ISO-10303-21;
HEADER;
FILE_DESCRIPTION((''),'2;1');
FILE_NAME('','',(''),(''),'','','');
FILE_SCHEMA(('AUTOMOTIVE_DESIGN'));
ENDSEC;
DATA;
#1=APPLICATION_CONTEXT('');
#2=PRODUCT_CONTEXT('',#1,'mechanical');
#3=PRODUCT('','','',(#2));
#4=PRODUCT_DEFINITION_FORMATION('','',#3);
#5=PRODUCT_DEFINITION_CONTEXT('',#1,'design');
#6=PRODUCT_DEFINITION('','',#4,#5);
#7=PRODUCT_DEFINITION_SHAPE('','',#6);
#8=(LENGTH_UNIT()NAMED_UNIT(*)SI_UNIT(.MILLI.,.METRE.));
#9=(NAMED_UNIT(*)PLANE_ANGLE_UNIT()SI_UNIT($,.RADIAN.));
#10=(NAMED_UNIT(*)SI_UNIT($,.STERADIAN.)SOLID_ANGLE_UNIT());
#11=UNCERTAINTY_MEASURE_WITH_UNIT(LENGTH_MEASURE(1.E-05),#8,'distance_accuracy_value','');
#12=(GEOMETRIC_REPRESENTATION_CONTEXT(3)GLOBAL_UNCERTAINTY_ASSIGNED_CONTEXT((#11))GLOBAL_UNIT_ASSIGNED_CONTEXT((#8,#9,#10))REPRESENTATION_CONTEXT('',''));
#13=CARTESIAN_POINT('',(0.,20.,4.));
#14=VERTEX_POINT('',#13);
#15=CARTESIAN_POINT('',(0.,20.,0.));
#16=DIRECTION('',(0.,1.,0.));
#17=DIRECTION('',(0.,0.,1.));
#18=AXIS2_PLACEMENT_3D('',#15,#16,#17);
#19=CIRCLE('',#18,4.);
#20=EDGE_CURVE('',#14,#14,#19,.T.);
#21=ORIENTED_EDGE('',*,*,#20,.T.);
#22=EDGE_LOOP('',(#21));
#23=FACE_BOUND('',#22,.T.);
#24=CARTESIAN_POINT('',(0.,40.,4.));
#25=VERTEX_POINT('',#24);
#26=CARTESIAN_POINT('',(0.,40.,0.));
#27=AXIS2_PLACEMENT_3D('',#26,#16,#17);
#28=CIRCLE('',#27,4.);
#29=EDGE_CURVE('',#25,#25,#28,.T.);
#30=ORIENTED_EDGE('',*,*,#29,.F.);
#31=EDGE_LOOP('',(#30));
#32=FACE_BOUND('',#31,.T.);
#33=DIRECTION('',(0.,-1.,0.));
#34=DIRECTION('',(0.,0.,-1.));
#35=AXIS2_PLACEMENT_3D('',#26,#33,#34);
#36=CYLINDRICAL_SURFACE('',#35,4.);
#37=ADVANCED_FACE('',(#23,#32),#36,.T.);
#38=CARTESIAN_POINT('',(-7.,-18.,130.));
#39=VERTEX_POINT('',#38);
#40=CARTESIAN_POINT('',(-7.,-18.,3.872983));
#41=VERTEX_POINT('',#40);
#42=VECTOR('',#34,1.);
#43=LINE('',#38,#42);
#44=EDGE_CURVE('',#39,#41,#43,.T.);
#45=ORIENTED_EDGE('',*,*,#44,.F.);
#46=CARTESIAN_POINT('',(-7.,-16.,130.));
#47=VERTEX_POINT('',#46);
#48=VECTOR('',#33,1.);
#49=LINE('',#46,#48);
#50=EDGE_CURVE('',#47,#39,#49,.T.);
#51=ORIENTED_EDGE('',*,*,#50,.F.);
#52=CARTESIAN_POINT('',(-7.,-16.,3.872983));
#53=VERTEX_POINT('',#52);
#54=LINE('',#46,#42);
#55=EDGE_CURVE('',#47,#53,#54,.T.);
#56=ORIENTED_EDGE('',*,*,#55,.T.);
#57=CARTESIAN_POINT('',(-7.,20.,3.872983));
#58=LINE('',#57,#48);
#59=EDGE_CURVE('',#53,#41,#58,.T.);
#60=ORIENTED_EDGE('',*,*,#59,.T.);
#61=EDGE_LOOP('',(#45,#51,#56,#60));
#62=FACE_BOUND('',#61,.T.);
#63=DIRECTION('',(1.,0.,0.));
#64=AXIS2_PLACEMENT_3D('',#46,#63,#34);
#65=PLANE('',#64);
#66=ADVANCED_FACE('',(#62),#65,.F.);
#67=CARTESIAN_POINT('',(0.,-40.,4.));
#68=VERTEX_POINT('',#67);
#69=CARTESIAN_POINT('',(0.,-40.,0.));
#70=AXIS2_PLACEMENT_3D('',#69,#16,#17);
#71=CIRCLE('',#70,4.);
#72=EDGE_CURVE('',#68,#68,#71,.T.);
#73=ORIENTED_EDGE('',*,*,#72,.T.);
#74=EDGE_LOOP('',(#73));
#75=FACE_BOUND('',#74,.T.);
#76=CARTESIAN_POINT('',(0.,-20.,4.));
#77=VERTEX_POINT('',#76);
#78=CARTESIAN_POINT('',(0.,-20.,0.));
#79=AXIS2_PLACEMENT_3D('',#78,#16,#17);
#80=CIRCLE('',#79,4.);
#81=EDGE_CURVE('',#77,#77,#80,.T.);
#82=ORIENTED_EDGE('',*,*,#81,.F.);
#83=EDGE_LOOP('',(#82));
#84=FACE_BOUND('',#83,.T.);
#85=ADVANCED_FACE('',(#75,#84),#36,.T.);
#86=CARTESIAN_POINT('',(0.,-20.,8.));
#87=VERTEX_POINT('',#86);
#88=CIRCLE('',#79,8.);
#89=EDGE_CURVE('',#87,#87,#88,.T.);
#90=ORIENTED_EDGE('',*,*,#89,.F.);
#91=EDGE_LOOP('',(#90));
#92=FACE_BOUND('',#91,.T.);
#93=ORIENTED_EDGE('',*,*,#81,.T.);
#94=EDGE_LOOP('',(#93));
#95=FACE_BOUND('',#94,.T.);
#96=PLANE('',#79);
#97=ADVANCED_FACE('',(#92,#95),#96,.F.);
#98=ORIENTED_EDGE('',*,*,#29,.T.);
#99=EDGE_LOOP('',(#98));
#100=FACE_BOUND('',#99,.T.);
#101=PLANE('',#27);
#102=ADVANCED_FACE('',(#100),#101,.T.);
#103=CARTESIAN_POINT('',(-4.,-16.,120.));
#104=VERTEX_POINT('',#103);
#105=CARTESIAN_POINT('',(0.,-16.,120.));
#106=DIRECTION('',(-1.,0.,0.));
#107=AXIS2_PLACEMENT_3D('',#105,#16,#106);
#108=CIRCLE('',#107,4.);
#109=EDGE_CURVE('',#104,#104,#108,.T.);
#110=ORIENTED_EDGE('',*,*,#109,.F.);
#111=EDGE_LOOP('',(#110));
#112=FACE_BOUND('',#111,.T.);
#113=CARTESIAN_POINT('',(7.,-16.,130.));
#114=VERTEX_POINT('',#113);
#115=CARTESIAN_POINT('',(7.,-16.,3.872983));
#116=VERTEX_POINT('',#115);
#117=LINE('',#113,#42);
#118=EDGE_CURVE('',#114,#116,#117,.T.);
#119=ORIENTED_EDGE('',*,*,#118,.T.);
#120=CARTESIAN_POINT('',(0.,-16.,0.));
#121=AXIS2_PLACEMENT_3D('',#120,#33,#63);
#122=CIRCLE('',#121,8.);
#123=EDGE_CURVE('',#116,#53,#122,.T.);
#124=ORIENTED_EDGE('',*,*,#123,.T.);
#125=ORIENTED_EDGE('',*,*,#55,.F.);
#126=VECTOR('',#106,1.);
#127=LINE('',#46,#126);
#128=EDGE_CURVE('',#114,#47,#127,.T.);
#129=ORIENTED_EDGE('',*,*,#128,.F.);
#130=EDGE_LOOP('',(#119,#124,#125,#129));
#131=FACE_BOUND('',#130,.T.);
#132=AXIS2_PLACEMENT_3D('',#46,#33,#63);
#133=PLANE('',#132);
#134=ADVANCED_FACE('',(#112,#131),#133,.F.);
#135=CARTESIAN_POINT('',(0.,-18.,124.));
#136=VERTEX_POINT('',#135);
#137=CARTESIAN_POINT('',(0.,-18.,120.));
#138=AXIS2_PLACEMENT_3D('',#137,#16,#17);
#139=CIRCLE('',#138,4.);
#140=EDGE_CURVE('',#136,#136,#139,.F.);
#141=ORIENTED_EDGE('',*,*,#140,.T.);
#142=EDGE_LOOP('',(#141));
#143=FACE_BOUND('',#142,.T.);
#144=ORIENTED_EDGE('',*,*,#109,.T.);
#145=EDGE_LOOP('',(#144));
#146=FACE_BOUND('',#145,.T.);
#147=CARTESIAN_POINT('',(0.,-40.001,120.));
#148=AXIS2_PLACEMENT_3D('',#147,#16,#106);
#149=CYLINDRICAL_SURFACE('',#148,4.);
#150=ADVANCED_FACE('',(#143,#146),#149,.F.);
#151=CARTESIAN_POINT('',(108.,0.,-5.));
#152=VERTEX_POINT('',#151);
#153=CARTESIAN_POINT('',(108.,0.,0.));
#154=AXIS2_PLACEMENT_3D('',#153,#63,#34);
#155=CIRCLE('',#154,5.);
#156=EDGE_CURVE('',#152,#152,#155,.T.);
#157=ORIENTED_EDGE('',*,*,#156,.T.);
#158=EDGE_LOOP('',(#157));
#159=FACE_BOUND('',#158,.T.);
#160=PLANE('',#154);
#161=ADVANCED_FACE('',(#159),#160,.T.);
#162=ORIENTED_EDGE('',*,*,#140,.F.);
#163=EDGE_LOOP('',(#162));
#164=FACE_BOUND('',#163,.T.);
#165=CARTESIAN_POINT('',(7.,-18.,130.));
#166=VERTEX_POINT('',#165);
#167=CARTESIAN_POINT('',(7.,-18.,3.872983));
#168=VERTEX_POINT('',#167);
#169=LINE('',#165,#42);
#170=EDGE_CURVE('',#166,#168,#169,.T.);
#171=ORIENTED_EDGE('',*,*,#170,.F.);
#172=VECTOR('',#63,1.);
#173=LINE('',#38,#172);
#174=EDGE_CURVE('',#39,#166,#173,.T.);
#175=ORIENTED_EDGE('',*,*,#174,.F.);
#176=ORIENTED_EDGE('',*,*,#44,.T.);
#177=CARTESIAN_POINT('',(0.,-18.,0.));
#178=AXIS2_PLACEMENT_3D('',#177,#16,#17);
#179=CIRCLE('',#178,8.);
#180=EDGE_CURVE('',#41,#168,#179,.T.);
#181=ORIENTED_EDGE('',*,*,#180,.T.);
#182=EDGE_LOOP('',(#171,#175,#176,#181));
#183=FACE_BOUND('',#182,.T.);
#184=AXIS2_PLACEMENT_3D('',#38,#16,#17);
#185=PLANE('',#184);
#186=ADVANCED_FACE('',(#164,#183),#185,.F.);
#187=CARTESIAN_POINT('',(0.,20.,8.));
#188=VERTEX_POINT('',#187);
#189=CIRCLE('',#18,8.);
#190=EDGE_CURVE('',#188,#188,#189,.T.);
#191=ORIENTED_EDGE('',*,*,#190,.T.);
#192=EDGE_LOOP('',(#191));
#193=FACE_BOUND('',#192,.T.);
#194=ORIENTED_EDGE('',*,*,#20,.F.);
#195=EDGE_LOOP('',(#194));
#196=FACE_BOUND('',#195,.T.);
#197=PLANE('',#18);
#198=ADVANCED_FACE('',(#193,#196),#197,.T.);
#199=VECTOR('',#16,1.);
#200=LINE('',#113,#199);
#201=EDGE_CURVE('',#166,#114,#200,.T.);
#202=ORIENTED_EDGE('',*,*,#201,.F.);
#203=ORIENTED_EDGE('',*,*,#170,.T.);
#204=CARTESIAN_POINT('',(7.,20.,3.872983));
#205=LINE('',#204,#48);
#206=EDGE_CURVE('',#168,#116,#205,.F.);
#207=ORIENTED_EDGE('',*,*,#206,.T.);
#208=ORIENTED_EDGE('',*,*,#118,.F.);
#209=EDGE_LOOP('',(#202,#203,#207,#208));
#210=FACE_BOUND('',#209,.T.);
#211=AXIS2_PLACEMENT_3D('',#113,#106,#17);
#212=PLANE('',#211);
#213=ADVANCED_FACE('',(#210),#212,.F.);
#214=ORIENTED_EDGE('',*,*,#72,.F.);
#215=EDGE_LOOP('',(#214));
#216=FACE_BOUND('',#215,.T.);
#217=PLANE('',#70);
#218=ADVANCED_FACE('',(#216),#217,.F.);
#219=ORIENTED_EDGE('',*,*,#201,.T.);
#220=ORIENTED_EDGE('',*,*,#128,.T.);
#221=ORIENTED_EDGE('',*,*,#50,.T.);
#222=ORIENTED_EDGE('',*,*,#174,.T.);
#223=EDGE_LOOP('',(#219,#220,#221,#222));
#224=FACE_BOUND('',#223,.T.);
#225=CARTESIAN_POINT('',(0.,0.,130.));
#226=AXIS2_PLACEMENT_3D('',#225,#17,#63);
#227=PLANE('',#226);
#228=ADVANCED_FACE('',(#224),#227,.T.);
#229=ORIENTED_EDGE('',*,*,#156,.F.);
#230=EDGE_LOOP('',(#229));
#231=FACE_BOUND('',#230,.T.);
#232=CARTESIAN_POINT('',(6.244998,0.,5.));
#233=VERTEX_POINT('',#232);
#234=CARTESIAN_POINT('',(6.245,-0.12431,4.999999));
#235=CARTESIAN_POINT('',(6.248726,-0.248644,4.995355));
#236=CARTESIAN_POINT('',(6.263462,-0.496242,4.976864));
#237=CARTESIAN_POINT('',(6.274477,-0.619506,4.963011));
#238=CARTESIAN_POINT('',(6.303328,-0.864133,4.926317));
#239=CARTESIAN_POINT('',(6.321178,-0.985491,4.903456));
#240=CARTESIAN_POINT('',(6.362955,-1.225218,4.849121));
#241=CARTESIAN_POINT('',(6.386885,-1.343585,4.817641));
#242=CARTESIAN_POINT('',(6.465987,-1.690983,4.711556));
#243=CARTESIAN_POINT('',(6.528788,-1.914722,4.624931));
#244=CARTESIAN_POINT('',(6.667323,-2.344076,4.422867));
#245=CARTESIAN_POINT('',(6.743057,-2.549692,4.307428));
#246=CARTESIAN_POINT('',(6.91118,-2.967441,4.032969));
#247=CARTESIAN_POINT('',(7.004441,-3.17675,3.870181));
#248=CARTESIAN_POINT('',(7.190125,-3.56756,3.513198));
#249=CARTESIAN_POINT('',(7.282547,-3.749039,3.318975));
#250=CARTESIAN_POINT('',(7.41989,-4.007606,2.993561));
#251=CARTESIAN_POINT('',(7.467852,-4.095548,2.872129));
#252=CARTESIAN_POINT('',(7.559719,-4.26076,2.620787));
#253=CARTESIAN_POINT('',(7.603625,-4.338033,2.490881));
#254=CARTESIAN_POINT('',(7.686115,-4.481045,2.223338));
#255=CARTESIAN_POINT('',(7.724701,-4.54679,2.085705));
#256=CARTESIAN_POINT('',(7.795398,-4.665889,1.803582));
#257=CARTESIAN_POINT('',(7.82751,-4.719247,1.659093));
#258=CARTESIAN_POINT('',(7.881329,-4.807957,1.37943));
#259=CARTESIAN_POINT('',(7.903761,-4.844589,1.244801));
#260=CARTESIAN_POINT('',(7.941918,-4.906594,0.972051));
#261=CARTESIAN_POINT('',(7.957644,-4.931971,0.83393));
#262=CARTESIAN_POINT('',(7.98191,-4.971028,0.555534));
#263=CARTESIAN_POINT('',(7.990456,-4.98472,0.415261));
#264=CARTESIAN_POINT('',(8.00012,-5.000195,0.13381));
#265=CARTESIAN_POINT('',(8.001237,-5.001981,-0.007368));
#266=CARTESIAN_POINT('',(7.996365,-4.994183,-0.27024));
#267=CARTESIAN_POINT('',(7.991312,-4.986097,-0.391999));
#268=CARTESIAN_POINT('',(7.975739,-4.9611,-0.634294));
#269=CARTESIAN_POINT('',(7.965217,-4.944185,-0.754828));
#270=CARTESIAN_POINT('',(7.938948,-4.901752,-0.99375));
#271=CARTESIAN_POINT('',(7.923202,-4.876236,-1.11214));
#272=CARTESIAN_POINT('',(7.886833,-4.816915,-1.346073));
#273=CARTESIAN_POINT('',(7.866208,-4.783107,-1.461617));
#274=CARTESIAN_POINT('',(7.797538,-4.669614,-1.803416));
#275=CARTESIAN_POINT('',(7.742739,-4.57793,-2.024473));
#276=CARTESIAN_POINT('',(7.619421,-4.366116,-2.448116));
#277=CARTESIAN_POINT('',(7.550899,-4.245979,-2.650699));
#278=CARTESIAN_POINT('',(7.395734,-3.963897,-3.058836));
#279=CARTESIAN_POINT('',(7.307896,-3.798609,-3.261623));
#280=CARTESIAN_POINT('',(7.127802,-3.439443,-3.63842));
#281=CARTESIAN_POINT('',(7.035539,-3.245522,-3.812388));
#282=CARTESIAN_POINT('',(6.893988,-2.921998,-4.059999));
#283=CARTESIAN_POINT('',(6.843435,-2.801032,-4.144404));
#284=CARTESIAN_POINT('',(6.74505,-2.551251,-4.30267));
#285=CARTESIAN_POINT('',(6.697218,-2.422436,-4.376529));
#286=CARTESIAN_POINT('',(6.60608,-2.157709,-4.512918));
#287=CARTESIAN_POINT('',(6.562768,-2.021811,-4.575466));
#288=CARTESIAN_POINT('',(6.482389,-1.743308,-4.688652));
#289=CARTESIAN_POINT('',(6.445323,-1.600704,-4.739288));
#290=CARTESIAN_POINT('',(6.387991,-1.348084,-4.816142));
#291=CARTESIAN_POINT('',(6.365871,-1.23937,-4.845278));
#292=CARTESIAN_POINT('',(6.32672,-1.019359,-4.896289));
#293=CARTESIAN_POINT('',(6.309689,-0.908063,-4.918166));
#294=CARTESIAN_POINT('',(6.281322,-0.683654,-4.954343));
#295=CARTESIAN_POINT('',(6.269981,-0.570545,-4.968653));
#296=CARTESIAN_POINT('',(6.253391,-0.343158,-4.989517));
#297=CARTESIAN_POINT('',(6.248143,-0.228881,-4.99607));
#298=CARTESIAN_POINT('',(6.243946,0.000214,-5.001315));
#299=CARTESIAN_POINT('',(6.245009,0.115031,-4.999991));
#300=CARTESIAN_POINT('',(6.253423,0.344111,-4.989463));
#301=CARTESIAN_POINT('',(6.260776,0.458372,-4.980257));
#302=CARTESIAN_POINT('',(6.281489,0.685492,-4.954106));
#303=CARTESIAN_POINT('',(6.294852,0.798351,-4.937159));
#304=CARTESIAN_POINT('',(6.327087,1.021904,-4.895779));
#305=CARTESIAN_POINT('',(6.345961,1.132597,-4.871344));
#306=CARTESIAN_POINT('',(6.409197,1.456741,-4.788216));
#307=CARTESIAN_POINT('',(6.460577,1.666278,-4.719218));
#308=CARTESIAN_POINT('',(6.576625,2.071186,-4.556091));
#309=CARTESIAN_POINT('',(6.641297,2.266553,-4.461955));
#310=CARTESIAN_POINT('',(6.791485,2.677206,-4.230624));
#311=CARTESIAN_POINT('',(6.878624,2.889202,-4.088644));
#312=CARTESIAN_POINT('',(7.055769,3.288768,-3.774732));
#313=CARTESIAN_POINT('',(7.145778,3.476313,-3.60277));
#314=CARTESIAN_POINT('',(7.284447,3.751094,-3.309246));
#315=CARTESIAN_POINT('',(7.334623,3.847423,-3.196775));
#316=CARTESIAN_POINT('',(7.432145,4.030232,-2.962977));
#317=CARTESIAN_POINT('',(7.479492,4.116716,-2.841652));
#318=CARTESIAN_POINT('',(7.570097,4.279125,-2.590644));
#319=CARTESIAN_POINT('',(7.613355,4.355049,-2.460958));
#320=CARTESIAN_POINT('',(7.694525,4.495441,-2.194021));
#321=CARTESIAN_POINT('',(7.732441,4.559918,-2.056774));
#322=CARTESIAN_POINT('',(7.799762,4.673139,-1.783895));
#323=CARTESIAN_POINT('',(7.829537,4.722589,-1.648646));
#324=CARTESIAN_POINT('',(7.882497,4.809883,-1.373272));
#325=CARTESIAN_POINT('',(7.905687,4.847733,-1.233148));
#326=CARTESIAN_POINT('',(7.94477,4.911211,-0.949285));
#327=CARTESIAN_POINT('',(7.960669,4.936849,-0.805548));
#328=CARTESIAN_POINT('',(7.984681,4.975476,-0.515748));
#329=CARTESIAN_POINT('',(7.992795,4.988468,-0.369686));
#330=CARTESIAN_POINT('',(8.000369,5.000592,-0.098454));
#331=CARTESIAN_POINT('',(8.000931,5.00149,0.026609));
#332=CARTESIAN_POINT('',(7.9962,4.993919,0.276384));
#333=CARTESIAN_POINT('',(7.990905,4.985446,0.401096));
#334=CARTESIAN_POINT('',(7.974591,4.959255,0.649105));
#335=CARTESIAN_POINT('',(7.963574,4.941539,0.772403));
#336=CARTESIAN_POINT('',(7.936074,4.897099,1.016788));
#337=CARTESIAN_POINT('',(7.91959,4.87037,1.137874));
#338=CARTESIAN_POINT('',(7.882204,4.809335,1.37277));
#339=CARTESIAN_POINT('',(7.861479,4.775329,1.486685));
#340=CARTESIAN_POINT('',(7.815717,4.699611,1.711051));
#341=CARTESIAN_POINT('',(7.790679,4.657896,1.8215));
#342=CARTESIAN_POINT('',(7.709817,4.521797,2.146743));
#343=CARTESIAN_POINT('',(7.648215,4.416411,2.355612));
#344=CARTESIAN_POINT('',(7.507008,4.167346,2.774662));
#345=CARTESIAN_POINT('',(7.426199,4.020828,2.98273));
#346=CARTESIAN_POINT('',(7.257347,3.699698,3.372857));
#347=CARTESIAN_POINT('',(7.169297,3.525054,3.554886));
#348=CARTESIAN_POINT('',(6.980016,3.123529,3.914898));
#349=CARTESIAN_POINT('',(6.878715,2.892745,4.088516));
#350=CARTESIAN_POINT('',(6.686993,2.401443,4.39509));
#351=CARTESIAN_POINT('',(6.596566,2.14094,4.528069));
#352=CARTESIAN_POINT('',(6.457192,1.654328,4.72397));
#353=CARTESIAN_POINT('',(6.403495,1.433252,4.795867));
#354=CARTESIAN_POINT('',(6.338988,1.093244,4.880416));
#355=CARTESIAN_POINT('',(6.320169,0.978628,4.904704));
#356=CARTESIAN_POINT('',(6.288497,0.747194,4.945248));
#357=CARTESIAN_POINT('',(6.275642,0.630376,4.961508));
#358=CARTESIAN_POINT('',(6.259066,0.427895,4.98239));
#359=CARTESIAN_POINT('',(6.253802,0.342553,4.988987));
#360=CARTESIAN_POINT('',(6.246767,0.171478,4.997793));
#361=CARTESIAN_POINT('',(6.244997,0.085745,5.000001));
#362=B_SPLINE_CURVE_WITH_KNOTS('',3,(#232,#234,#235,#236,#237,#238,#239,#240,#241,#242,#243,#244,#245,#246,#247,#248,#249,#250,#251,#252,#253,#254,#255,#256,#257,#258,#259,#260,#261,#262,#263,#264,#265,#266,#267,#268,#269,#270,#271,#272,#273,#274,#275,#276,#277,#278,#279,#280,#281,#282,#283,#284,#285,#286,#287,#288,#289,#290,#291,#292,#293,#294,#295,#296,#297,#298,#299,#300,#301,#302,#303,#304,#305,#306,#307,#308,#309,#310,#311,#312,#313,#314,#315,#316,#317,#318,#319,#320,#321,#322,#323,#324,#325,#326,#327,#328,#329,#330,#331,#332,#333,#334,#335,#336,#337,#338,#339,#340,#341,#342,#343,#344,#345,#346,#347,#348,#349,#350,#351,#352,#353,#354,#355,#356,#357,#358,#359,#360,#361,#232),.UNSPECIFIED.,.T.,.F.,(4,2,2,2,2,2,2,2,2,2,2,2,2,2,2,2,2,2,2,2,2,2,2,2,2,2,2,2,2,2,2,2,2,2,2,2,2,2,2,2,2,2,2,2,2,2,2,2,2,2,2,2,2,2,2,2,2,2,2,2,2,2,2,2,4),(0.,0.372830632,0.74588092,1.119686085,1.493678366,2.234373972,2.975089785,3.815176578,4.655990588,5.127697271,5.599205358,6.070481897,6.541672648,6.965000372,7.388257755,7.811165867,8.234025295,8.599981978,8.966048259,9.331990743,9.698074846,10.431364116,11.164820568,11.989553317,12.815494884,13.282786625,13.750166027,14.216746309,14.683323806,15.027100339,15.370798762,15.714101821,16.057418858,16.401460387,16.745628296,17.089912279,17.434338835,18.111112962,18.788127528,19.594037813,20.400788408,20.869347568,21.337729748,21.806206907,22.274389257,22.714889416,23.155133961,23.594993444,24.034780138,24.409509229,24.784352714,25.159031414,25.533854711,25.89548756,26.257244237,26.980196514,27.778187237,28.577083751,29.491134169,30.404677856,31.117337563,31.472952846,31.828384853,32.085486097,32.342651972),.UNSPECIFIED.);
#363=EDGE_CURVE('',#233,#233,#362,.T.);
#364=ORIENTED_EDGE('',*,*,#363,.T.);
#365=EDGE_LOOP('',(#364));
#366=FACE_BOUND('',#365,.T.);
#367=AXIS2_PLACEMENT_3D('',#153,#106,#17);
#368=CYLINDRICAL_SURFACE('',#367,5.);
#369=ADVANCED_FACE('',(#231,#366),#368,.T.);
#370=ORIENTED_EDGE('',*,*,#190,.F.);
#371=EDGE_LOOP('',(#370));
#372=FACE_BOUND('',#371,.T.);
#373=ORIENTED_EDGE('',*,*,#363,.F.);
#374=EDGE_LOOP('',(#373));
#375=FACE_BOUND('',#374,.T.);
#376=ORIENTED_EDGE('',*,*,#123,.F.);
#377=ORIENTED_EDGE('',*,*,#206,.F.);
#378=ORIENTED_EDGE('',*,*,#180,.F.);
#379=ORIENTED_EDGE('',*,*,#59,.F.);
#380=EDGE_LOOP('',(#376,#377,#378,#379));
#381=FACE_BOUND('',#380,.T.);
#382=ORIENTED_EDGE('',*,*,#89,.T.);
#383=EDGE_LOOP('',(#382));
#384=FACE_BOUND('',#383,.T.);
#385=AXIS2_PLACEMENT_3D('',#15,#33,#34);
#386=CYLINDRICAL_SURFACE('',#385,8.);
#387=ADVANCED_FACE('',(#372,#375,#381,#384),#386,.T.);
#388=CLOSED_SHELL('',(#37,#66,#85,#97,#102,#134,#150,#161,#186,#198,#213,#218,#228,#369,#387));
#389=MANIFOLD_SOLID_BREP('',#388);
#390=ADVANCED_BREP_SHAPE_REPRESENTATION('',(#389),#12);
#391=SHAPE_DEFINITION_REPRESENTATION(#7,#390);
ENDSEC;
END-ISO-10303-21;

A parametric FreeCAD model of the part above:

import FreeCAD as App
import Part
import Sketcher
from FreeCAD import Vector


def add_polygon(sketch, points):
    """Adds a closed chain of lines whose ends are joined by coincident constraints."""
    first, n = sketch.GeometryCount, len(points)
    for a, b in zip(points, points[1:] + points[:1]):
        sketch.addGeometry(Part.LineSegment(App.Vector(*a, 0), App.Vector(*b, 0)), False)
    for i in range(n):
        sketch.addConstraint(Sketcher.Constraint("Coincident", first + i, 2, first + (i + 1) % n, 1))

doc = App.newDocument("Part")
body = doc.addObject("PartDesign::Body", "Body")

# Sketch on XZ plane
sketch1 = body.newObject("Sketcher::SketchObject", "Sketch")
sketch1.AttachmentSupport = (doc.getObject("XZ_Plane"), [""])
sketch1.MapMode = "FlatFace"
sketch1.addGeometry(Part.Circle(Vector(0, 0, 0), Vector(0, 0, 1), 4), False)
sketch1.addConstraint(Sketcher.Constraint("Coincident", 0, 3, -1, 1))
sketch1.addConstraint(Sketcher.Constraint("Diameter", 0, 8.0))
pad1 = body.newObject("PartDesign::Pad", "Pad")
pad1.Profile = sketch1
pad1.Length = 80
pad1.Midplane = True

# Sketch on XZ plane
sketch2 = body.newObject("Sketcher::SketchObject", "Sketch001")
sketch2.AttachmentSupport = (doc.getObject("XZ_Plane"), [""])
sketch2.MapMode = "FlatFace"
sketch2.addGeometry(Part.Circle(Vector(0, 0, 0), Vector(0, 0, 1), 8), False)
sketch2.addConstraint(Sketcher.Constraint("Coincident", 0, 3, -1, 1))
sketch2.addConstraint(Sketcher.Constraint("Diameter", 0, 16.0))
pad2 = body.newObject("PartDesign::Pad", "Pad001")
pad2.Profile = sketch2
pad2.Length = 40
pad2.Midplane = True

# Sketch on YZ plane
sketch3 = body.newObject("Sketcher::SketchObject", "Sketch002")
sketch3.AttachmentSupport = (doc.getObject("YZ_Plane"), [""])
sketch3.MapMode = "FlatFace"
sketch3.addGeometry(Part.Circle(Vector(0, 0, 0), Vector(0, 0, 1), 5), False)
sketch3.addConstraint(Sketcher.Constraint("Coincident", 0, 3, -1, 1))
sketch3.addConstraint(Sketcher.Constraint("Diameter", 0, 10.0))
pad3 = body.newObject("PartDesign::Pad", "Pad002")
pad3.Profile = sketch3
pad3.Length = 108

# Sketch on XY plane
sketch4 = body.newObject("Sketcher::SketchObject", "Sketch003")
sketch4.AttachmentSupport = (doc.getObject("XY_Plane"), [""])
sketch4.MapMode = "FlatFace"
add_polygon(sketch4, [(-7, -16), (-7, -18), (7, -18), (7, -16)])  # lines 0-3
sketch4.addConstraint(Sketcher.Constraint("Vertical", 0))
sketch4.addConstraint(Sketcher.Constraint("Horizontal", 1))
sketch4.addConstraint(Sketcher.Constraint("Vertical", 2))
sketch4.addConstraint(Sketcher.Constraint("Horizontal", 3))
sketch4.addConstraint(Sketcher.Constraint("DistanceX", 1, 1, 1, 2, 14.0))
sketch4.addConstraint(Sketcher.Constraint("DistanceY", 0, 2, 0, 1, 2.0))
sketch4.addConstraint(Sketcher.Constraint("DistanceX", 0, 2, -1, 1, 7.0))
sketch4.addConstraint(Sketcher.Constraint("DistanceY", 0, 2, -1, 1, 18.0))
pad4 = body.newObject("PartDesign::Pad", "Pad003")
pad4.Profile = sketch4
pad4.Length = 130

# Sketch on XZ plane
sketch5 = body.newObject("Sketcher::SketchObject", "Sketch004")
sketch5.AttachmentSupport = (doc.getObject("XZ_Plane"), [""])
sketch5.MapMode = "FlatFace"
sketch5.AttachmentOffset = App.Placement(Vector(0, 0, 16), App.Rotation())
sketch5.addGeometry(Part.Circle(Vector(0, 120, 0), Vector(0, 0, 1), 4), False)
sketch5.addConstraint(Sketcher.Constraint("PointOnObject", 0, 3, -2))
sketch5.addConstraint(Sketcher.Constraint("Diameter", 0, 8.0))
sketch5.addConstraint(Sketcher.Constraint("DistanceY", -1, 1, 0, 3, 120.0))
pocket1 = body.newObject("PartDesign::Pocket", "Pocket")
pocket1.Profile = sketch5
pocket1.Type = "UpToFirst"
pocket1.Reversed = True

doc.recompute()
